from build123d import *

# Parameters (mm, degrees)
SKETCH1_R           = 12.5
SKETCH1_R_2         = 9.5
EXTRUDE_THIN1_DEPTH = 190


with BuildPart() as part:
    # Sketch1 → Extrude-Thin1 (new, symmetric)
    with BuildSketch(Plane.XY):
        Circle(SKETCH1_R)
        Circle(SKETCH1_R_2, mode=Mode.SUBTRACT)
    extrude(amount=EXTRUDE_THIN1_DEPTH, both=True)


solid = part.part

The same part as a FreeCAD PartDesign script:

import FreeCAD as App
import Part
import Sketcher
from FreeCAD import Vector

doc = App.newDocument("Part")
body = doc.addObject("PartDesign::Body", "Body")

sketch1 = doc.addObject("Sketcher::SketchObject", "Sketch")
body.addObject(sketch1)
sketch1.AttachmentSupport = (doc.XY_Plane, [""])
sketch1.MapMode = "FlatFace"
sketch1.addGeometry(Part.Circle(Vector(0, 0, 0), Vector(0, 0, 1), 12), False)
sketch1.addGeometry(Part.Circle(Vector(0, 0, 0), Vector(0, 0, 1), 10), False)
sketch1.addConstraint(Sketcher.Constraint("Coincident", 0, 3, -1, 1))
sketch1.addConstraint(Sketcher.Constraint("Coincident", 1, 3, -1, 1))
sketch1.addConstraint(Sketcher.Constraint("Diameter", 0, 25.0))
sketch1.addConstraint(Sketcher.Constraint("Diameter", 1, 19.0))
pad1 = doc.addObject("PartDesign::Pad", "Pad")
body.addObject(pad1)
pad1.Profile = sketch1
pad1.Length = 380
pad1.Midplane = True

doc.recompute()
